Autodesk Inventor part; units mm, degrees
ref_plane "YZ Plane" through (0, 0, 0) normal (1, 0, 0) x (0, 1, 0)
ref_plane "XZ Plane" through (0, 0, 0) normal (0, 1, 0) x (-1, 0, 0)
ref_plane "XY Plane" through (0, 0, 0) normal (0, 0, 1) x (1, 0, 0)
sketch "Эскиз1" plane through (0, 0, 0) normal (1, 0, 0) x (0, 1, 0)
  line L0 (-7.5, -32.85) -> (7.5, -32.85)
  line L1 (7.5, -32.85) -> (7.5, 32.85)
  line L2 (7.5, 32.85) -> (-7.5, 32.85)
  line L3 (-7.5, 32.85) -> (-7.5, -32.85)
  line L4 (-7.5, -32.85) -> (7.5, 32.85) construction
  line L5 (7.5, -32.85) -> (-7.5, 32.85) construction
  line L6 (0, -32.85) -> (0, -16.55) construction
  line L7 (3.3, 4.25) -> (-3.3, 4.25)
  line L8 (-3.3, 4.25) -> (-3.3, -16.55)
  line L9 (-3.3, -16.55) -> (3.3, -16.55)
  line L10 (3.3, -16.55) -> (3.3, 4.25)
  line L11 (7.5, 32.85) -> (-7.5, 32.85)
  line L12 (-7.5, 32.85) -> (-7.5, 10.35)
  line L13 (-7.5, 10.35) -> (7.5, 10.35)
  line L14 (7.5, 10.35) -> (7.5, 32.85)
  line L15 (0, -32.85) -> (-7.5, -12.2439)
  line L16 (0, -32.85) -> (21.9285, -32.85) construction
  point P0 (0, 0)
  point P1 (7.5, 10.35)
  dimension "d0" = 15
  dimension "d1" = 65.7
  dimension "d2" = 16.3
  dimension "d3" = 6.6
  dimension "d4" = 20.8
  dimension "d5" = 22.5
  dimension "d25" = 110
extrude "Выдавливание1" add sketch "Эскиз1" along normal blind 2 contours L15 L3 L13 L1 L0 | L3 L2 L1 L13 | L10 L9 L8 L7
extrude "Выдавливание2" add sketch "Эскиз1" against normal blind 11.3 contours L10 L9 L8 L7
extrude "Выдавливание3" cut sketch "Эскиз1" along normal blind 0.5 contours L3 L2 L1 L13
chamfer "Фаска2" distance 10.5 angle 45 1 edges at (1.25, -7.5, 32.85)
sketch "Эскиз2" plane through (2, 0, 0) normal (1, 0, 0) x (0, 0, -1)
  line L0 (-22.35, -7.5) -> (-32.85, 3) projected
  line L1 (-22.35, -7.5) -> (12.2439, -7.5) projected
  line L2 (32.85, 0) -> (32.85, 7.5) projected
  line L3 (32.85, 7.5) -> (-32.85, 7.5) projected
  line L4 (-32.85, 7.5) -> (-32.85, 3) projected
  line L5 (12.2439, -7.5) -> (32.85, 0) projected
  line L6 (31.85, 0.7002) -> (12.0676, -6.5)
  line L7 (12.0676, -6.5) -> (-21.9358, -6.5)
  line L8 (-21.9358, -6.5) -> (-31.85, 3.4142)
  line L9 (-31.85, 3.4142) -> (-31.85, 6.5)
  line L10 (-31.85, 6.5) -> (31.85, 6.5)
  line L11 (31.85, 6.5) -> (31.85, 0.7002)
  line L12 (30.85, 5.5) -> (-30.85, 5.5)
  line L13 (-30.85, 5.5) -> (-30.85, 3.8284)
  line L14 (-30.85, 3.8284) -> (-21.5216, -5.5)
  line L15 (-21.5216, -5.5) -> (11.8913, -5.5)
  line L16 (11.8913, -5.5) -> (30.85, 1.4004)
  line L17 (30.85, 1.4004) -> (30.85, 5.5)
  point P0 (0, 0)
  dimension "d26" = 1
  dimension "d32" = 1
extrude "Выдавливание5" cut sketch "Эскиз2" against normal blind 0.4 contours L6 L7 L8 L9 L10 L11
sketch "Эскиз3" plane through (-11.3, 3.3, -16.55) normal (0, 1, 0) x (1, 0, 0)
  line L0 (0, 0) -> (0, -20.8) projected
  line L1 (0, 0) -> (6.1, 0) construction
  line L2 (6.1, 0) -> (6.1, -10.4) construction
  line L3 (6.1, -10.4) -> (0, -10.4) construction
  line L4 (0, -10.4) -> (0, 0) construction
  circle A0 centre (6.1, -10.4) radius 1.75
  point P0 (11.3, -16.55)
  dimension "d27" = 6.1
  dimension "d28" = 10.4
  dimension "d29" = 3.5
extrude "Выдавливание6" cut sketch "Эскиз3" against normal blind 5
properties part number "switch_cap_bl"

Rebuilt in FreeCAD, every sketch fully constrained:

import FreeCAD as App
import Part
import Sketcher
from FreeCAD import Vector
Q = App.Units.Quantity


def edges_at(feature, points):
    """Names of the edges that pass closest to the given points."""
    edges = feature.Shape.Edges
    near = lambda p: min(range(len(edges)), key=lambda i: edges[i].distToShape(Part.Vertex(*p))[0])
    return sorted({f"Edge{near(p) + 1}" for p in points})

doc = App.newDocument("Part")
body = doc.addObject("PartDesign::Body", "Body")

sketch1 = body.newObject("Sketcher::SketchObject", "Sketch")
sketch1.AttachmentSupport = (doc.getObject("YZ_Plane"), [""])
sketch1.MapMode = "FlatFace"
sketch1.addGeometry([
    Part.LineSegment(Vector(-7.5, -12.2439, 0), Vector(0, -32.85, 0)),
    Part.LineSegment(Vector(0, -32.85, 0), Vector(7.5, -32.85, 0)),
    Part.LineSegment(Vector(7.5, -32.85, 0), Vector(7.5, 32.85, 0)),
    Part.LineSegment(Vector(7.5, 32.85, 0), Vector(-7.5, 32.85, 0)),
    Part.LineSegment(Vector(-7.5, 32.85, 0), Vector(-7.5, -12.2439, 0)),
], False)
sketch1.addConstraint([
    Sketcher.Constraint("Coincident", 0, 2, 1, 1),
    Sketcher.Constraint("Coincident", 1, 2, 2, 1),
    Sketcher.Constraint("Coincident", 2, 2, 3, 1),
    Sketcher.Constraint("Coincident", 3, 2, 4, 1),
    Sketcher.Constraint("Coincident", 4, 2, 0, 1),
    Sketcher.Constraint("Horizontal", 1),
    Sketcher.Constraint("Vertical", 2),
    Sketcher.Constraint("Horizontal", 3),
    Sketcher.Constraint("Vertical", 4),
    Sketcher.Constraint("Symmetric", 1, 2, 3, 2, -1, 1),
    Sketcher.Constraint("PointOnObject", 0, 2, -2),
    Sketcher.Constraint("DistanceX", 3, 2, 3, 1, 15.0),
    Sketcher.Constraint("DistanceY", 2, 1, 2, 2, 65.7),
    Sketcher.Constraint("Angle", 0, Q("-70 deg")),
])
pad1 = body.newObject("PartDesign::Pad", "Pad")
pad1.Profile = sketch1
pad1.Length = 2

sketch2 = body.newObject("Sketcher::SketchObject", "Sketch001")
sketch2.AttachmentSupport = (doc.getObject("YZ_Plane"), [""])
sketch2.MapMode = "FlatFace"
sketch2.addGeometry([
    Part.LineSegment(Vector(3.3, -16.55, 0), Vector(3.3, 4.25, 0)),
    Part.LineSegment(Vector(3.3, 4.25, 0), Vector(-3.3, 4.25, 0)),
    Part.LineSegment(Vector(-3.3, 4.25, 0), Vector(-3.3, -16.55, 0)),
    Part.LineSegment(Vector(-3.3, -16.55, 0), Vector(3.3, -16.55, 0)),
], False)
sketch2.addConstraint([
    Sketcher.Constraint("Coincident", 0, 2, 1, 1),
    Sketcher.Constraint("Coincident", 1, 2, 2, 1),
    Sketcher.Constraint("Coincident", 2, 2, 3, 1),
    Sketcher.Constraint("Coincident", 3, 2, 0, 1),
    Sketcher.Constraint("Vertical", 0),
    Sketcher.Constraint("Horizontal", 1),
    Sketcher.Constraint("Vertical", 2),
    Sketcher.Constraint("Horizontal", 3),
    Sketcher.Constraint("DistanceX", 1, 2, 1, 1, 6.6),
    Sketcher.Constraint("DistanceY", 0, 1, 0, 2, 20.8),
    Sketcher.Constraint("DistanceX", -1, 1, 0, 2, 3.3),
    Sketcher.Constraint("DistanceY", -1, 1, 0, 2, 4.25),
])
pad2 = body.newObject("PartDesign::Pad", "Pad001")
pad2.Profile = sketch2
pad2.Length = 11.3
pad2.Reversed = True

sketch3 = body.newObject("Sketcher::SketchObject", "Sketch002")
sketch3.AttachmentSupport = (doc.getObject("YZ_Plane"), [""])
sketch3.MapMode = "FlatFace"
sketch3.addGeometry([
    Part.LineSegment(Vector(-7.5, 32.85, 0), Vector(-7.5, 10.35, 0)),
    Part.LineSegment(Vector(-7.5, 10.35, 0), Vector(7.5, 10.35, 0)),
    Part.LineSegment(Vector(7.5, 10.35, 0), Vector(7.5, 32.85, 0)),
    Part.LineSegment(Vector(7.5, 32.85, 0), Vector(-7.5, 32.85, 0)),
], False)
sketch3.addConstraint([
    Sketcher.Constraint("Coincident", 0, 2, 1, 1),
    Sketcher.Constraint("Coincident", 1, 2, 2, 1),
    Sketcher.Constraint("Coincident", 2, 2, 3, 1),
    Sketcher.Constraint("Coincident", 3, 2, 0, 1),
    Sketcher.Constraint("Vertical", 0),
    Sketcher.Constraint("Horizontal", 1),
    Sketcher.Constraint("Vertical", 2),
    Sketcher.Constraint("Horizontal", 3),
    Sketcher.Constraint("DistanceX", 1, 1, 1, 2, 15.0),
    Sketcher.Constraint("DistanceY", 0, 2, 0, 1, 22.5),
    Sketcher.Constraint("DistanceX", 0, 2, -1, 1, 7.5),
    Sketcher.Constraint("DistanceY", -1, 1, 0, 2, 10.35),
])
pocket1 = body.newObject("PartDesign::Pocket", "Pocket")
pocket1.Profile = sketch3
pocket1.Length = 0.5
pocket1.Reversed = True
doc.recompute()

chamfer = body.newObject("PartDesign::Chamfer", "Chamfer")
chamfer.Base = (pocket1, edges_at(pocket1, [(1.25, -7.5, 32.85)]))
chamfer.Size = 10.5

sketch4 = body.newObject("Sketcher::SketchObject", "Sketch003")
sketch4.AttachmentSupport = (doc.getObject("YZ_Plane"), [""])
sketch4.MapMode = "FlatFace"
sketch4.AttachmentOffset = App.Placement(Vector(0, 0, 2), App.Rotation())
sketch4.addGeometry([
    Part.LineSegment(Vector(-6.5, -12.0676, 0), Vector(0.7002, -31.85, 0)),
    Part.LineSegment(Vector(0.7002, -31.85, 0), Vector(6.5, -31.85, 0)),
    Part.LineSegment(Vector(6.5, -31.85, 0), Vector(6.5, 31.85, 0)),
    Part.LineSegment(Vector(6.5, 31.85, 0), Vector(3.4142, 31.85, 0)),
    Part.LineSegment(Vector(3.4142, 31.85, 0), Vector(-6.5, 21.9358, 0)),
    Part.LineSegment(Vector(-6.5, 21.9358, 0), Vector(-6.5, -12.0676, 0)),
    Part.LineSegment(Vector(5.5, 30.85, 0), Vector(5.5, -30.85, 0)),
    Part.LineSegment(Vector(5.5, -30.85, 0), Vector(1.4004, -30.85, 0)),
    Part.LineSegment(Vector(1.4004, -30.85, 0), Vector(-5.5, -11.8913, 0)),
    Part.LineSegment(Vector(-5.5, -11.8913, 0), Vector(-5.5, 21.5216, 0)),
    Part.LineSegment(Vector(-5.5, 21.5216, 0), Vector(3.8284, 30.85, 0)),
    Part.LineSegment(Vector(3.8284, 30.85, 0), Vector(5.5, 30.85, 0)),
], False)
sketch4.addConstraint([
    Sketcher.Constraint("Coincident", 0, 2, 1, 1),
    Sketcher.Constraint("Coincident", 1, 2, 2, 1),
    Sketcher.Constraint("Coincident", 2, 2, 3, 1),
    Sketcher.Constraint("Coincident", 3, 2, 4, 1),
    Sketcher.Constraint("Coincident", 4, 2, 5, 1),
    Sketcher.Constraint("Coincident", 5, 2, 0, 1),
    Sketcher.Constraint("Coincident", 6, 2, 7, 1),
    Sketcher.Constraint("Coincident", 7, 2, 8, 1),
    Sketcher.Constraint("Coincident", 8, 2, 9, 1),
    Sketcher.Constraint("Coincident", 9, 2, 10, 1),
    Sketcher.Constraint("Coincident", 10, 2, 11, 1),
    Sketcher.Constraint("Coincident", 11, 2, 6, 1),
    Sketcher.Constraint("Horizontal", 1),
    Sketcher.Constraint("Vertical", 2),
    Sketcher.Constraint("Horizontal", 3),
    Sketcher.Constraint("Vertical", 5),
    Sketcher.Constraint("Vertical", 6),
    Sketcher.Constraint("Horizontal", 7),
    Sketcher.Constraint("Vertical", 9),
    Sketcher.Constraint("Horizontal", 11),
    Sketcher.Constraint("Parallel", 0, 8),
    Sketcher.Constraint("Parallel", 4, 10),
    Sketcher.Constraint("DistanceX", 6, 2, 1, 2, 1.0),
    Sketcher.Constraint("DistanceY", 1, 2, 6, 2, 1.0),
    Sketcher.Constraint("DistanceX", 5, 2, 8, 2, 1.0),
    Sketcher.Constraint("DistanceY", 10, 2, 3, 2, 1.0),
    Sketcher.Constraint("Angle", 0, Q("-70 deg")),
    Sketcher.Constraint("Angle", 4, Q("-135 deg")),
    Sketcher.Constraint("DistanceY", 2, 1, 2, 2, 63.7),
    Sketcher.Constraint("DistanceX", 4, 2, 2, 2, 13.0),
    Sketcher.Constraint("DistanceX", -1, 1, 1, 2, 6.5),
    Sketcher.Constraint("DistanceY", 9, 1, 9, 2, 33.413),
    Sketcher.Constraint("DistanceY", 0, 2, -1, 1, 31.85),
    Sketcher.Constraint("Distance", 0, 21.052),
    Sketcher.Constraint("DistanceX", 3, 2, 3, 1, 3.0858),
    Sketcher.Constraint("DistanceX", 7, 2, 7, 1, 4.0996),
])
pocket2 = body.newObject("PartDesign::Pocket", "Pocket001")
pocket2.Profile = sketch4
pocket2.Length = 0.4

sketch5 = body.newObject("Sketcher::SketchObject", "Sketch004")
sketch5.AttachmentSupport = (doc.getObject("XZ_Plane"), [""])
sketch5.MapMode = "FlatFace"
sketch5.AttachmentOffset = App.Placement(Vector(0, 0, -3.3), App.Rotation())
sketch5.addGeometry(Part.Circle(Vector(-5.2, -6.15, 0), Vector(0, 0, 1), 1.75), False)
sketch5.addConstraint([
    Sketcher.Constraint("Diameter", 0, 3.5),
    Sketcher.Constraint("DistanceX", 0, 3, -1, 1, 5.2),
    Sketcher.Constraint("DistanceY", 0, 3, -1, 1, 6.15),
])
pocket3 = body.newObject("PartDesign::Pocket", "Pocket002")
pocket3.Profile = sketch5
pocket3.Length = 5
pocket3.Reversed = True

doc.recompute()
